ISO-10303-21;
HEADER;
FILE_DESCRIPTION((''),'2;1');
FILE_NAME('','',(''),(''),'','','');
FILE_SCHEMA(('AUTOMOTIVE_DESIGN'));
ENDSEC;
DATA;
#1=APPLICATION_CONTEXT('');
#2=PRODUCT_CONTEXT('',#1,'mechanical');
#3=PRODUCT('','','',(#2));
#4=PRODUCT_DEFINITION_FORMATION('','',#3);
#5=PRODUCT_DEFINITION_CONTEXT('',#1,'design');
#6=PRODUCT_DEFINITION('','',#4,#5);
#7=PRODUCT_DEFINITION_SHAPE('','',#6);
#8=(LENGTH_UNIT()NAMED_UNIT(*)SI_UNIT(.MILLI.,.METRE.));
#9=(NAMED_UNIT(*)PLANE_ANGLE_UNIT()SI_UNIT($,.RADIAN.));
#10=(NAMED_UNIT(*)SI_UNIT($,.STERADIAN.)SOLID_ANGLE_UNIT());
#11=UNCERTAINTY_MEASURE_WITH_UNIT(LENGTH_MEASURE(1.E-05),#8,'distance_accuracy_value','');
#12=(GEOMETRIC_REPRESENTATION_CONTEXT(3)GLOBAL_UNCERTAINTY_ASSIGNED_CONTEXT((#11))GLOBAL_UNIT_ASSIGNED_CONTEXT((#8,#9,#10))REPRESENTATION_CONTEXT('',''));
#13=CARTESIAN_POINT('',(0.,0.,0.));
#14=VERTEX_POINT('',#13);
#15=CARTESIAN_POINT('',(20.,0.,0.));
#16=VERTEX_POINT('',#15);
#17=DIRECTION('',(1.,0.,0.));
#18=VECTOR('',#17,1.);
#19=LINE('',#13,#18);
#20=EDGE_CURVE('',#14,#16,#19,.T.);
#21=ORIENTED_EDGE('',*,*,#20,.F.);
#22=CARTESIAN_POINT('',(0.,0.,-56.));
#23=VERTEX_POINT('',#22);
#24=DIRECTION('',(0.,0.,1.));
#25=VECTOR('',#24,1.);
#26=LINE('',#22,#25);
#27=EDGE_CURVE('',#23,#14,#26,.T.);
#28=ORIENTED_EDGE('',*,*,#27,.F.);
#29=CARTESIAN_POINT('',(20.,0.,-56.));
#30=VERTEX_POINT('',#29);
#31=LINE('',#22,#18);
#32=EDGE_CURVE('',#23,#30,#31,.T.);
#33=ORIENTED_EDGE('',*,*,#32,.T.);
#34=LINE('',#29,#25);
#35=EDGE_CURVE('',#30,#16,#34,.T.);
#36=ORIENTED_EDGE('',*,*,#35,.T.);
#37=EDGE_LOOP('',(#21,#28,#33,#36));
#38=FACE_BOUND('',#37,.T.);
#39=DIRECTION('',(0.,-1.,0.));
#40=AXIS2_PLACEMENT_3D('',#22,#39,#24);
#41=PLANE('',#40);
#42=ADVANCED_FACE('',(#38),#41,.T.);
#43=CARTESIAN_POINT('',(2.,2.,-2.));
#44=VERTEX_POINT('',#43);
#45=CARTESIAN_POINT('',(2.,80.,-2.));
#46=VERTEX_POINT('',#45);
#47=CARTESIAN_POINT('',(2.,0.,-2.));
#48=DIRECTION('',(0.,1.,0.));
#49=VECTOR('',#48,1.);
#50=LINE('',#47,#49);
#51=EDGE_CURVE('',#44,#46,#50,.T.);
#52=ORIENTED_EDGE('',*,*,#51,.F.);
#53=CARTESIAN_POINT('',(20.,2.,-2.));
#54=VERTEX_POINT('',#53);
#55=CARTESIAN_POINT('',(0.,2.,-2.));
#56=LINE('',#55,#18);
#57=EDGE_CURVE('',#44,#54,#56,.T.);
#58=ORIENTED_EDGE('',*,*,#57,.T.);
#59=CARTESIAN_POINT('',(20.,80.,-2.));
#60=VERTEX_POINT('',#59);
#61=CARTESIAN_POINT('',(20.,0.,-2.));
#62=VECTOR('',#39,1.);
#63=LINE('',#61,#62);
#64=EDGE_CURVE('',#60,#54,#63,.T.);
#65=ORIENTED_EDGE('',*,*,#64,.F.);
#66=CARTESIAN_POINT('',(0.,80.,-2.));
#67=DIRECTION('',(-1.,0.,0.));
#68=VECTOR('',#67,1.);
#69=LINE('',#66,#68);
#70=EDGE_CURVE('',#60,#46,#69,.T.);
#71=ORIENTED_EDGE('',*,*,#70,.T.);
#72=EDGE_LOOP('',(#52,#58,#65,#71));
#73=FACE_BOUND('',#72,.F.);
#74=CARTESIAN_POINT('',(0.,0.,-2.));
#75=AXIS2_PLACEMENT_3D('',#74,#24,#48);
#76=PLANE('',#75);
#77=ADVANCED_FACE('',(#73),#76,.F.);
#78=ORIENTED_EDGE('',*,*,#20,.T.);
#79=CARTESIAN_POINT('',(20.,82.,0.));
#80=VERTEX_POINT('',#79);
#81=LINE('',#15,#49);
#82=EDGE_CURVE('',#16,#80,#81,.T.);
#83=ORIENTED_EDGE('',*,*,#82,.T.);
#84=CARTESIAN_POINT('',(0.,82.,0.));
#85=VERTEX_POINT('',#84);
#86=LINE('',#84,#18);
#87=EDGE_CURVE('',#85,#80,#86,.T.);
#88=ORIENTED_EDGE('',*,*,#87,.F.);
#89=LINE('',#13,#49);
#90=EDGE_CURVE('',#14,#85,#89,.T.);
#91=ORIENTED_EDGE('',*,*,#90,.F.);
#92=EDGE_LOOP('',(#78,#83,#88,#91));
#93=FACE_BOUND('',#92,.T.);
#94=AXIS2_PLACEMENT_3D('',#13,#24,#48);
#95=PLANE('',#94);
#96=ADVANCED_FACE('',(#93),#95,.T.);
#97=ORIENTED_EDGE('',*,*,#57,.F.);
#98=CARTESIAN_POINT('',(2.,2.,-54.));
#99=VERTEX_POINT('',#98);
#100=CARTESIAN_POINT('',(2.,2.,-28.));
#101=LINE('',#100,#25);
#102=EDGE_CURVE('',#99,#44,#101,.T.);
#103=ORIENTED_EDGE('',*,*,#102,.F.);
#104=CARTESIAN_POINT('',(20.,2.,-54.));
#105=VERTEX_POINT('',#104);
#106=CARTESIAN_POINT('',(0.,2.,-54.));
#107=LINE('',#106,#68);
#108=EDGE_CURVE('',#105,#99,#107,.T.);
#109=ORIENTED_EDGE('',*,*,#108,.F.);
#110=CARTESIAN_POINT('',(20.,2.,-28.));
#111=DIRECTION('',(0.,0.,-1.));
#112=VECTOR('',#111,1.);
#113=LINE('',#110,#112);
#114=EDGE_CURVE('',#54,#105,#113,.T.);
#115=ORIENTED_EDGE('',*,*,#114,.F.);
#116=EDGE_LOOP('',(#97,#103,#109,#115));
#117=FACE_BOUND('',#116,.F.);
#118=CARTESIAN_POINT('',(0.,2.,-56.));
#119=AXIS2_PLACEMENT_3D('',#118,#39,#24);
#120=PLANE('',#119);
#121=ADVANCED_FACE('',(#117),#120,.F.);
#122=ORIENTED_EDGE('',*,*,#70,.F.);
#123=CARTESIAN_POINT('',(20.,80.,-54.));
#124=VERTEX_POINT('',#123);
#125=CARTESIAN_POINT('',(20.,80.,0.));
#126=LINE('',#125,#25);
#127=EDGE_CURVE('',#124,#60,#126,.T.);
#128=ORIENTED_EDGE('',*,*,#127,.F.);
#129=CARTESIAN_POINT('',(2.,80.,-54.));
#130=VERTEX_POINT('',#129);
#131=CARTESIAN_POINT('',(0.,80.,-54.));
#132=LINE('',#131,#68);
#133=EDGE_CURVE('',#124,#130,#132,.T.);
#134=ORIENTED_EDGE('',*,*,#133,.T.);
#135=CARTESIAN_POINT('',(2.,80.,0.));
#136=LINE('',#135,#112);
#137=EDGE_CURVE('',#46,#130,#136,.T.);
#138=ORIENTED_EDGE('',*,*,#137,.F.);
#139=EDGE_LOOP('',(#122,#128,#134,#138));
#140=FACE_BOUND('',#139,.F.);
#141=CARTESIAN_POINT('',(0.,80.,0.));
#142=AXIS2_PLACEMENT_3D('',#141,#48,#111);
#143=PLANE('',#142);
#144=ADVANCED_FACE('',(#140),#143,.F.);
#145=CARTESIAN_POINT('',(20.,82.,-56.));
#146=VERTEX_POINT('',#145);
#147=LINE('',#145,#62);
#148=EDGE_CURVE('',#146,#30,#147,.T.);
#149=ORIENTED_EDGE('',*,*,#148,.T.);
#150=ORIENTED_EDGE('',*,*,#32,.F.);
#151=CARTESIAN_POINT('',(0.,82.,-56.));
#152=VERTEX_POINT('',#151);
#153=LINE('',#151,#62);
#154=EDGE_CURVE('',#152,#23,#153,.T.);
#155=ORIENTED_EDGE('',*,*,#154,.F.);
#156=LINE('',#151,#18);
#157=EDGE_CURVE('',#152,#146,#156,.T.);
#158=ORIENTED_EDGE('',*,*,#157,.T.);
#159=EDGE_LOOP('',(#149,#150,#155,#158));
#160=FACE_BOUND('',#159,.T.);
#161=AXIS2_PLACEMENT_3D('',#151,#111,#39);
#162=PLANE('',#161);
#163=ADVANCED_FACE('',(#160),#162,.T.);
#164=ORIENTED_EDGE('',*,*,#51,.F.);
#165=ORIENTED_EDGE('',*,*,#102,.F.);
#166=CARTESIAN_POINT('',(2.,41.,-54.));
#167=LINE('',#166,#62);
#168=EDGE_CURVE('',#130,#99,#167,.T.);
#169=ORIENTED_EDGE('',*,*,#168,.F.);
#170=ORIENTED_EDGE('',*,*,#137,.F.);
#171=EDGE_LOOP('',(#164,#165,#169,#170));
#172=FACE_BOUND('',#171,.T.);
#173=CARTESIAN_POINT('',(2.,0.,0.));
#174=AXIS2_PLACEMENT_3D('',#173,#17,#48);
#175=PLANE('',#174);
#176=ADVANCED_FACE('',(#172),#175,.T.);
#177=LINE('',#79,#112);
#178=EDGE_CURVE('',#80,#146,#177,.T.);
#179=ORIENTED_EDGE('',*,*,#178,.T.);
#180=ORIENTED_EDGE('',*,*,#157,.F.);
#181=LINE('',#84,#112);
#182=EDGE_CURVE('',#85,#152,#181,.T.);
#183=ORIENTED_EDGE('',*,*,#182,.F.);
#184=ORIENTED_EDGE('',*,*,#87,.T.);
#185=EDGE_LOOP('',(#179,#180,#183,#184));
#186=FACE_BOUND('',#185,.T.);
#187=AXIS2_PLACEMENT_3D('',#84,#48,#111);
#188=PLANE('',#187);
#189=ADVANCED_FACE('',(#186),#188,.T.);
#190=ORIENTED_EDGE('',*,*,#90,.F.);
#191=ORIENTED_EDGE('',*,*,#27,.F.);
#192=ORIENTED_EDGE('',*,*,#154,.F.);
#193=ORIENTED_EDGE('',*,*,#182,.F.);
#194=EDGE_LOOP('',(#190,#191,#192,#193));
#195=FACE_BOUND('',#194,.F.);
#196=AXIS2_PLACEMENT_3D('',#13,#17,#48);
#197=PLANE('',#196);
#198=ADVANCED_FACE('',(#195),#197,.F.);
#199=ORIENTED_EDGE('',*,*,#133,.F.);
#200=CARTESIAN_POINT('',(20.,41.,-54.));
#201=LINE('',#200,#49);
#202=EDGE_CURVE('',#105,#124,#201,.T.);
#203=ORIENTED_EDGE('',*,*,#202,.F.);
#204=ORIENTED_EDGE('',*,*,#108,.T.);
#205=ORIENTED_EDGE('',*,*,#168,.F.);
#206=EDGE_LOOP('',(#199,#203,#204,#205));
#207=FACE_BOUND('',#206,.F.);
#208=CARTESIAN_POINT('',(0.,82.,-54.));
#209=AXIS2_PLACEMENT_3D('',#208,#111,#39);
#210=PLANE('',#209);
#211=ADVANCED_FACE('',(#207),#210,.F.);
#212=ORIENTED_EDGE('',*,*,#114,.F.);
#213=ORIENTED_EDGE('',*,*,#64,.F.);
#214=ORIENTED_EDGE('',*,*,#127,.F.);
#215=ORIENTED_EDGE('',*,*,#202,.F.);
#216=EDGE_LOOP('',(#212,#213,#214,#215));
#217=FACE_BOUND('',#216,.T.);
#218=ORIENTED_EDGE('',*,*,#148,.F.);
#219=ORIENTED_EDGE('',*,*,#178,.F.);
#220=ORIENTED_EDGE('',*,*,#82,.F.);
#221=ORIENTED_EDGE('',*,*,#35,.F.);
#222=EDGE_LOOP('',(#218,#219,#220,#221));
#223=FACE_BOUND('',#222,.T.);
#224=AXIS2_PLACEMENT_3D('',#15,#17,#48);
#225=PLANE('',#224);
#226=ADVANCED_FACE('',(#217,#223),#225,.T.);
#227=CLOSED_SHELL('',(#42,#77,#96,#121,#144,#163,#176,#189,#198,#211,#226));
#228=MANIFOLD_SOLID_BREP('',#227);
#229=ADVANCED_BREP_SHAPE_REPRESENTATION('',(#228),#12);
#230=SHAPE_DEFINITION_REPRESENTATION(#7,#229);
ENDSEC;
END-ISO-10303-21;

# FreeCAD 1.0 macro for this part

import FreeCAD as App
import Part
import Sketcher
Q = App.Units.Quantity


def faces_at(feature, points):
    """Names of the faces that lie closest to the given points."""
    faces = feature.Shape.Faces
    near = lambda p: min(range(len(faces)), key=lambda i: faces[i].distToShape(Part.Vertex(*p))[0])
    return sorted({f"Face{near(p) + 1}" for p in points})


def add_polygon(sketch, points):
    """Adds a closed chain of lines whose ends are joined by coincident constraints."""
    first, n = sketch.GeometryCount, len(points)
    for a, b in zip(points, points[1:] + points[:1]):
        sketch.addGeometry(Part.LineSegment(App.Vector(*a, 0), App.Vector(*b, 0)), False)
    for i in range(n):
        sketch.addConstraint(Sketcher.Constraint("Coincident", first + i, 2, first + (i + 1) % n, 1))

doc = App.newDocument("Part")
body = doc.addObject("PartDesign::Body", "Body")

# Sketch on YZ plane
sketch1 = body.newObject("Sketcher::SketchObject", "Sketch")
sketch1.AttachmentSupport = (doc.getObject("YZ_Plane"), [""])
sketch1.MapMode = "FlatFace"
add_polygon(sketch1, [(82, 0), (0, 0), (0, -56), (82, -56)])  # lines 0-3
sketch1.addConstraint(Sketcher.Constraint("Horizontal", 0))
sketch1.addConstraint(Sketcher.Constraint("Vertical", 1))
sketch1.addConstraint(Sketcher.Constraint("Horizontal", 2))
sketch1.addConstraint(Sketcher.Constraint("Vertical", 3))
sketch1.addConstraint(Sketcher.Constraint("Coincident", 0, 2, -1, 1))
sketch1.addConstraint(Sketcher.Constraint("DistanceX", 0, 2, 0, 1, Q("82 mm")))
sketch1.addConstraint(Sketcher.Constraint("DistanceY", 1, 2, 1, 1, Q("56 mm")))
pad1 = body.newObject("PartDesign::Pad", "Pad")
pad1.Profile = sketch1
pad1.Length = 20
doc.recompute()

thickness = body.newObject("PartDesign::Thickness", "Thickness")
thickness.Base = (pad1, faces_at(pad1, [(20, 27.333, -18.667)]))
thickness.Value = 2
thickness.Reversed = True
thickness.Join = "Intersection"

doc.recompute()
